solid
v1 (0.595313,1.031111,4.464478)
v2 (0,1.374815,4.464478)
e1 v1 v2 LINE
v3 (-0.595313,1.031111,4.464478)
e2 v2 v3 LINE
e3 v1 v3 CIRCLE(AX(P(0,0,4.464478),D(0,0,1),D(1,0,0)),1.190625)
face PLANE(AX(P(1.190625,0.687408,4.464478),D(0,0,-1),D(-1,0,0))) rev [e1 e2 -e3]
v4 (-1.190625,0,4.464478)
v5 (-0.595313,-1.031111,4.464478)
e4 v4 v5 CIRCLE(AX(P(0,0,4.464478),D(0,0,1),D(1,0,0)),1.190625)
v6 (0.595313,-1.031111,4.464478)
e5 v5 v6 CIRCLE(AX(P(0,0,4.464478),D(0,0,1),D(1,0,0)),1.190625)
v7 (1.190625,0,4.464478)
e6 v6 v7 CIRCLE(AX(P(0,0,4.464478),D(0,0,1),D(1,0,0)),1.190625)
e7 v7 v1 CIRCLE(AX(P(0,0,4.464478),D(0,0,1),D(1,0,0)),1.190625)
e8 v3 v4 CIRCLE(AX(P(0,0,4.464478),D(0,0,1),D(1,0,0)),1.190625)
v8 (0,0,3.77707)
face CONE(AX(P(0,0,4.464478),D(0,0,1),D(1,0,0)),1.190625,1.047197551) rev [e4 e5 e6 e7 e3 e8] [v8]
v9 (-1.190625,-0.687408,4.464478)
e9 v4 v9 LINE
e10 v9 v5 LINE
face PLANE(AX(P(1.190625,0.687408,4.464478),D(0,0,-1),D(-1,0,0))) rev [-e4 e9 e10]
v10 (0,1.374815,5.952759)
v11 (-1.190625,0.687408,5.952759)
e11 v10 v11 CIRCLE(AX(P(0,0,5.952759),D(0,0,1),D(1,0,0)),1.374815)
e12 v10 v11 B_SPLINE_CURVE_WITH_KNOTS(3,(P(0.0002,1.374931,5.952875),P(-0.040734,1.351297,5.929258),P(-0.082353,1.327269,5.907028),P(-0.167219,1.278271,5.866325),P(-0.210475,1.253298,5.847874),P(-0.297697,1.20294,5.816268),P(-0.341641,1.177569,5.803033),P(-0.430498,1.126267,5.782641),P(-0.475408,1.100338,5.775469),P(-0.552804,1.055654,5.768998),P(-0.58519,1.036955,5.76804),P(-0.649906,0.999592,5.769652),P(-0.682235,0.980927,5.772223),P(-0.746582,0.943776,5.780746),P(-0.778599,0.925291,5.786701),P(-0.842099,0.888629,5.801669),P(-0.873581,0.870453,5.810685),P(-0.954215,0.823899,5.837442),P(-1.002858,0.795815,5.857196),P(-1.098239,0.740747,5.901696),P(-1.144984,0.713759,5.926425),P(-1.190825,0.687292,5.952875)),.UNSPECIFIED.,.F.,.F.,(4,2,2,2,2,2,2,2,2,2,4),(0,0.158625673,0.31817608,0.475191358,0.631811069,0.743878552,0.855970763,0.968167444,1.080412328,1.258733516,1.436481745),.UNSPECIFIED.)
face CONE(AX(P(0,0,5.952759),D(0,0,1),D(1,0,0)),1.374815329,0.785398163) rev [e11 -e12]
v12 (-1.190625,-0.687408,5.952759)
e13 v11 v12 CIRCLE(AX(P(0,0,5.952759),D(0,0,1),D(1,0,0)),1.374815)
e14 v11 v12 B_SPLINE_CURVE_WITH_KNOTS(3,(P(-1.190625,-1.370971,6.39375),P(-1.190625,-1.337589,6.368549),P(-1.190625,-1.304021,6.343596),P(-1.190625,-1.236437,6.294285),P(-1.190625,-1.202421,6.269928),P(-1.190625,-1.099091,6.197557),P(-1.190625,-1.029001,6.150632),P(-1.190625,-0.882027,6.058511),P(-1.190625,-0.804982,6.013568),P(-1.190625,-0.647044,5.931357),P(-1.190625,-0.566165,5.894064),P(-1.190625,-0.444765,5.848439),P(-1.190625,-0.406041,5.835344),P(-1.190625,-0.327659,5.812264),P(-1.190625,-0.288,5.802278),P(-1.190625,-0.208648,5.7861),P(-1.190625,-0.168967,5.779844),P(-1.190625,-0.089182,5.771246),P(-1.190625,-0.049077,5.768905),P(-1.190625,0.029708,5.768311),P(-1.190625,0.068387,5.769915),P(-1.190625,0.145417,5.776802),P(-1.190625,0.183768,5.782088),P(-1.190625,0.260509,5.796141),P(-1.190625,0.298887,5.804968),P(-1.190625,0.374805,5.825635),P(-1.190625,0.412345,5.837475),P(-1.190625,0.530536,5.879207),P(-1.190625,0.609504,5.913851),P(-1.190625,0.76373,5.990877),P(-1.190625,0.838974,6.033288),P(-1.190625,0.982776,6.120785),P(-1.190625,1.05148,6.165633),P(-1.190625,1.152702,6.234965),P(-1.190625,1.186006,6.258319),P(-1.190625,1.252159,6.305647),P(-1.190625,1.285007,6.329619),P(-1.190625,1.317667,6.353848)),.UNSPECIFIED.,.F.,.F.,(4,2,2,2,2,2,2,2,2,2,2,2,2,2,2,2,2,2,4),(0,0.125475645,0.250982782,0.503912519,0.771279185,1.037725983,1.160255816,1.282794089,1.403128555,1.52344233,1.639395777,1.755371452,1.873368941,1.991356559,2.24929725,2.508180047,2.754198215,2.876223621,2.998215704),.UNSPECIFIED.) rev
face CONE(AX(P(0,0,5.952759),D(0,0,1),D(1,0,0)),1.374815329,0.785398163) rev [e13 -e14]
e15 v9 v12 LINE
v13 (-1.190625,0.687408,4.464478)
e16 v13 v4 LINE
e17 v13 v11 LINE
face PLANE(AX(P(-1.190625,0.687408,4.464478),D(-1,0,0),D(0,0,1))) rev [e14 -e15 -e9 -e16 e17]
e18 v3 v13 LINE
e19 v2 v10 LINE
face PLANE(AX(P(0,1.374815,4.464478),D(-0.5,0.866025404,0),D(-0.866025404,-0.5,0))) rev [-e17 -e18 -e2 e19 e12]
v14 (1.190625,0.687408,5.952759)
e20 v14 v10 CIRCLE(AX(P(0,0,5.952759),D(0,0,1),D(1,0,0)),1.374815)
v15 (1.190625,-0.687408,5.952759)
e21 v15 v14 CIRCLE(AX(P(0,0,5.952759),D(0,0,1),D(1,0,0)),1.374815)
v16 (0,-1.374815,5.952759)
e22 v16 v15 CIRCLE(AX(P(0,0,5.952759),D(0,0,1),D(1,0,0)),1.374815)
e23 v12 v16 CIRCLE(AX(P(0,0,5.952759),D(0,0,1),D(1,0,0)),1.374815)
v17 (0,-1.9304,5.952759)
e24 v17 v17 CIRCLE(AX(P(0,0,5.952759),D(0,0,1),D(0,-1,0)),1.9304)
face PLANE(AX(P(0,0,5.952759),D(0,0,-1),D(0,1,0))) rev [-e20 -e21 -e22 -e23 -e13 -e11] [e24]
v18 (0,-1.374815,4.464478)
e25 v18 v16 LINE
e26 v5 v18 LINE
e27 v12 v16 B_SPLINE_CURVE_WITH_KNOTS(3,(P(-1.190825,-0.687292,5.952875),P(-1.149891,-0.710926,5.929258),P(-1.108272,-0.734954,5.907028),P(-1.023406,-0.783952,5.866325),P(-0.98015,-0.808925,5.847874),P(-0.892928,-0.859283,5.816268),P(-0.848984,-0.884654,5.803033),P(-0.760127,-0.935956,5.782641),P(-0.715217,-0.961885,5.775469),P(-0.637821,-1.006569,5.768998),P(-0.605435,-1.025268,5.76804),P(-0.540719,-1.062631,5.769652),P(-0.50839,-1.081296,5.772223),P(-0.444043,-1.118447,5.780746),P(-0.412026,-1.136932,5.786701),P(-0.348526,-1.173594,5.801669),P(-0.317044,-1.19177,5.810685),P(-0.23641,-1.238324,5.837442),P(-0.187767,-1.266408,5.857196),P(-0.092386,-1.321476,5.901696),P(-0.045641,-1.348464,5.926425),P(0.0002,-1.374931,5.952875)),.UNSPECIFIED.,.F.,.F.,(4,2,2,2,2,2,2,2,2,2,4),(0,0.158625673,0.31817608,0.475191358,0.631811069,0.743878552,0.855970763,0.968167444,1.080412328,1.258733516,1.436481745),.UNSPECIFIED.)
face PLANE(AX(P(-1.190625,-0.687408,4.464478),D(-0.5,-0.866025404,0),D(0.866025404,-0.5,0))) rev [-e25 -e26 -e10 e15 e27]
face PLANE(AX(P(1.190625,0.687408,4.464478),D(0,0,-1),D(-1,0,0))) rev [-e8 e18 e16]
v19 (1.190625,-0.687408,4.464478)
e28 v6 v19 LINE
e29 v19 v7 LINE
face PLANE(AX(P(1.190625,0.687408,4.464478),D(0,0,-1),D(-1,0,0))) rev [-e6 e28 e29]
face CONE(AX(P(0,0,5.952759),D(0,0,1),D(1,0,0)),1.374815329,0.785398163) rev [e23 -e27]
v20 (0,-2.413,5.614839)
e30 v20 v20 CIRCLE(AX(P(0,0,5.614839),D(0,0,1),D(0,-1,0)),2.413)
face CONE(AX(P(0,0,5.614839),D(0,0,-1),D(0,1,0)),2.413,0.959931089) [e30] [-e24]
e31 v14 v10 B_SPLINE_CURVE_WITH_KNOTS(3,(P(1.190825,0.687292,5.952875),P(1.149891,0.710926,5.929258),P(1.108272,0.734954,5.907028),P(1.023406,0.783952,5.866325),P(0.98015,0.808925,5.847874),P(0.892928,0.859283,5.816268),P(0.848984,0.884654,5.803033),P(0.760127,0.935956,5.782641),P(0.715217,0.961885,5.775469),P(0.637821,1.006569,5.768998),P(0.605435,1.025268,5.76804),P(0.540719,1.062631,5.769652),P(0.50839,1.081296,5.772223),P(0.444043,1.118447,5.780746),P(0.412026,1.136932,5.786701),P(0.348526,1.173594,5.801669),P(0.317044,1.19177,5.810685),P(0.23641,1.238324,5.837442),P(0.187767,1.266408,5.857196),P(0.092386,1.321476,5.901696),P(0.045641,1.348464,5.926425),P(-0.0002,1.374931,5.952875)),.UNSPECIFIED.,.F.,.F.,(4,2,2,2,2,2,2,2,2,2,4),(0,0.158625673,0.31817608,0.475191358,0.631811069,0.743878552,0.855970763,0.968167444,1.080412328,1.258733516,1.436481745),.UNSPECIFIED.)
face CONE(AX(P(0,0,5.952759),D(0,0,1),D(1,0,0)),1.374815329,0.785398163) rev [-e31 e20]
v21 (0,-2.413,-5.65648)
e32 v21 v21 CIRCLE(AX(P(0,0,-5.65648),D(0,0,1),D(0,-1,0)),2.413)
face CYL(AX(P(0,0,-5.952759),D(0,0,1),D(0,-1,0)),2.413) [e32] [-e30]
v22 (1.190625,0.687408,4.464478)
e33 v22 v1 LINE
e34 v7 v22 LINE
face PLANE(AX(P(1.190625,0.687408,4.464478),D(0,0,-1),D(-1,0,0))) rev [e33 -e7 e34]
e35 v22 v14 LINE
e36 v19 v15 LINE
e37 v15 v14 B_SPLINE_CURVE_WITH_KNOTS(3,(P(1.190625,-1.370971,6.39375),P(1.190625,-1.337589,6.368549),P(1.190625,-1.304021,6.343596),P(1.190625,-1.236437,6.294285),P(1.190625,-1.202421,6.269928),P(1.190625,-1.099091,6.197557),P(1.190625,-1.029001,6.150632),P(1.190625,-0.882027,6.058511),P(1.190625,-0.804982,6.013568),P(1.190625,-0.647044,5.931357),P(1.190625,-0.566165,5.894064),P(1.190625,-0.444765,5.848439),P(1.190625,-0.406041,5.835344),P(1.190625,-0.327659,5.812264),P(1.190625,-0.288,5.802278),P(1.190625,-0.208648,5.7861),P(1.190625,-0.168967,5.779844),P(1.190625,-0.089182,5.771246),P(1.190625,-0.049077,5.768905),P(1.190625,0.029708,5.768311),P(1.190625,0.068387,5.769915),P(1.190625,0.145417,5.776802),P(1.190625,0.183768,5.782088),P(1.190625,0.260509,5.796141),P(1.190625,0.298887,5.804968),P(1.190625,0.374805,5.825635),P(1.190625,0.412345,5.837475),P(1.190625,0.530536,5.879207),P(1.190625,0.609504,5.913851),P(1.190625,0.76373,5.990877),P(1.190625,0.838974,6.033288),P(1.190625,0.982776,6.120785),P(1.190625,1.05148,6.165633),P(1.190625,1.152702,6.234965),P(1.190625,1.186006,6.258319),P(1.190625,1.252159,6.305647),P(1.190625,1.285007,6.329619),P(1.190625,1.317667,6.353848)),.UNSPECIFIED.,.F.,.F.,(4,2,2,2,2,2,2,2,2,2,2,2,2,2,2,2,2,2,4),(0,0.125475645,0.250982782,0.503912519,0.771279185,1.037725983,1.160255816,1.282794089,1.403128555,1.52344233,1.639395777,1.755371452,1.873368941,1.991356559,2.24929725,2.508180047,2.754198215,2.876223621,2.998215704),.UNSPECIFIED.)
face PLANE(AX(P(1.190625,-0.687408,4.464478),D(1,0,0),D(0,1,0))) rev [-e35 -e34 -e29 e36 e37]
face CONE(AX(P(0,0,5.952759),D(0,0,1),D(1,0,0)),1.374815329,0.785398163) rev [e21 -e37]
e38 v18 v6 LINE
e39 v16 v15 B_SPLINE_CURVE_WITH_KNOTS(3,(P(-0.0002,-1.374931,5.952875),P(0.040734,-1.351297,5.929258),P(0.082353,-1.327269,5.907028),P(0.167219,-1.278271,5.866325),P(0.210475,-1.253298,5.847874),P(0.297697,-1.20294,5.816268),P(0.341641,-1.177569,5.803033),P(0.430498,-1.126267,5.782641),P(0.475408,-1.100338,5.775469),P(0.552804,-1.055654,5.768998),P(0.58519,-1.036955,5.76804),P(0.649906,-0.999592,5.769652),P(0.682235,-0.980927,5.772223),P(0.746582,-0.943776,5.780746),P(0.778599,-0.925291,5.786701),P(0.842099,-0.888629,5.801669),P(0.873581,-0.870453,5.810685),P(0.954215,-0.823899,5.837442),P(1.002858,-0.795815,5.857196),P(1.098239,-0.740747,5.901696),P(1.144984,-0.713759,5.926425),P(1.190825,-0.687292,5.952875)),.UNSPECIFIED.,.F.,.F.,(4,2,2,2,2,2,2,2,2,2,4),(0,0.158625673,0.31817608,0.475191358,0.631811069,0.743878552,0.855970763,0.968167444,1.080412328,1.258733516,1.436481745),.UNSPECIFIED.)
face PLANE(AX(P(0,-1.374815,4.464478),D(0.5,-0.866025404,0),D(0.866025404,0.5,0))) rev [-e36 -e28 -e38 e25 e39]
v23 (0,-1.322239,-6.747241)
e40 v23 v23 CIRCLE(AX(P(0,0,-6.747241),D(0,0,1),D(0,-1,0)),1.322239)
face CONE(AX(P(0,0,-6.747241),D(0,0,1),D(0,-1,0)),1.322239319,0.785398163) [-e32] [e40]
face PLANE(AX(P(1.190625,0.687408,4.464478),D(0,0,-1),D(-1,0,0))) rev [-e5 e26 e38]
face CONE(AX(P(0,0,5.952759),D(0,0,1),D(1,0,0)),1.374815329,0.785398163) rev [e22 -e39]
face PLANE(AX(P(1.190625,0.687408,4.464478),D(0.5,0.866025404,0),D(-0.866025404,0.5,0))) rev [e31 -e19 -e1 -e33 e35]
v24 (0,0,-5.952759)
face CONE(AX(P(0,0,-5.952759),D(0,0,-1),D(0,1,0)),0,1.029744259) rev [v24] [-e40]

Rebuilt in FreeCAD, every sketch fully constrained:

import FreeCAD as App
import Part
import Sketcher

V = App.Vector
Q = App.Units.Quantity


def add_polygon(sketch, points):
    """Adds a closed chain of lines whose ends are joined by coincident constraints."""
    first, n = sketch.GeometryCount, len(points)
    for a, b in zip(points, points[1:] + points[:1]):
        sketch.addGeometry(Part.LineSegment(App.Vector(*a, 0), App.Vector(*b, 0)), False)
    for i in range(n):
        sketch.addConstraint(Sketcher.Constraint("Coincident", first + i, 2, first + (i + 1) % n, 1))

doc = App.newDocument("Part")
body = doc.addObject("PartDesign::Body", "Body")

# Sketch on YZ plane
sketch1 = doc.addObject("Sketcher::SketchObject", "Sketch")
body.addObject(sketch1)
sketch1.AttachmentSupport = (doc.YZ_Plane, [""])
sketch1.MapMode = "FlatFace"
add_polygon(sketch1, [(1.9304, 5.952759), (0, 5.952759), (0, -5.952759), (1.322239, -6.747241), (2.413, -5.65648), (2.413, 5.614839)])  # lines 0-5
sketch1.addConstraint([
    Sketcher.Constraint("Horizontal", 0),
    Sketcher.Constraint("Vertical", 1),
    Sketcher.Constraint("Vertical", 4),
    Sketcher.Constraint("Symmetric", 0, 2, 1, 2, -1, 1),
    Sketcher.Constraint("Equal", 2, 3),
    Sketcher.Constraint("Angle", 2, Q("-31 deg")),
    Sketcher.Constraint("Angle", 3, Q("45 deg")),
    Sketcher.Constraint("Angle", 5, Q("145 deg")),
    Sketcher.Constraint("DistanceY", 2, 2, 0, 2, Q("0.5 in")),
    Sketcher.Constraint("DistanceX", 0, 2, 0, 1, Q("0.076 in")),
    Sketcher.Constraint("DistanceX", -1, 1, 3, 2, Q("0.095 in")),
])
revolution = doc.addObject("PartDesign::Revolution", "Revolution")
body.addObject(revolution)
revolution.Profile = sketch1
revolution.ReferenceAxis = (sketch1, ["V_Axis"])
revolution.Angle = 360

# Sketch on XY plane
sketch2 = doc.addObject("Sketcher::SketchObject", "Sketch001")
body.addObject(sketch2)
sketch2.AttachmentSupport = (doc.XY_Plane, [""])
sketch2.MapMode = "FlatFace"
sketch2.AttachmentOffset = App.Placement(V(0, 0, 5.952759), App.Rotation())
add_polygon(sketch2, [(0, 1.374815), (-1.190625, 0.687408), (-1.190625, -0.687408), (0, -1.374815), (1.190625, -0.687408), (1.190625, 0.687408)])  # lines 0-5
sketch2.addConstraint([
    Sketcher.Constraint("Vertical", 1),
    Sketcher.Constraint("Vertical", 4),
    Sketcher.Constraint("Symmetric", 0, 2, 3, 2, -1, 1),
    Sketcher.Constraint("Symmetric", 2, 2, 5, 2, -1, 1),
    Sketcher.Constraint("PointOnObject", 2, 2, -2),
    Sketcher.Constraint("Parallel", 2, 5),
    Sketcher.Constraint("Horizontal", 1, 2, 3, 2),
    Sketcher.Constraint("Angle", 0, Q("-150 deg")),
    Sketcher.Constraint("DistanceX", 0, 2, -1, 1, Q("0.046875 in")),
    Sketcher.Constraint("DistanceY", 1, 2, 1, 1, 1.374815),
])
pocket1 = doc.addObject("PartDesign::Pocket", "Pocket")
body.addObject(pocket1)
pocket1.Profile = sketch2
pocket1.Length = 1.488281

# Sketch on YZ plane
sketch3 = doc.addObject("Sketcher::SketchObject", "Sketch002")
body.addObject(sketch3)
sketch3.AttachmentSupport = (doc.YZ_Plane, [""])
sketch3.MapMode = "FlatFace"
add_polygon(sketch3, [(0, 5.952759), (-1.374815, 5.952759), (0, 4.577944)])  # lines 0-2
sketch3.addConstraint([
    Sketcher.Constraint("Horizontal", 0),
    Sketcher.Constraint("Vertical", 2),
    Sketcher.Constraint("PointOnObject", 1, 2, -2),
    Sketcher.Constraint("Equal", 0, 2),
    Sketcher.Constraint("DistanceX", 0, 2, 0, 1, 1.374815),
    Sketcher.Constraint("DistanceY", -1, 1, 0, 2, 5.952759),
])
groove = doc.addObject("PartDesign::Groove", "Groove")
body.addObject(groove)
groove.Profile = sketch3
groove.ReferenceAxis = (sketch3, ["V_Axis"])
groove.Angle = 360

# Sketch on YZ plane
sketch4 = doc.addObject("Sketcher::SketchObject", "Sketch003")
body.addObject(sketch4)
sketch4.AttachmentSupport = (doc.YZ_Plane, [""])
sketch4.MapMode = "FlatFace"
add_polygon(sketch4, [(0, 4.464478), (-1.190625, 4.464478), (0, 3.77707)])  # lines 0-2
sketch4.addConstraint([
    Sketcher.Constraint("Horizontal", 0),
    Sketcher.Constraint("Vertical", 2),
    Sketcher.Constraint("PointOnObject", 1, 2, -2),
    Sketcher.Constraint("Angle", 1, Q("-30 deg")),
    Sketcher.Constraint("DistanceX", 0, 2, 0, 1, Q("0.046875 in")),
    Sketcher.Constraint("DistanceY", -1, 1, 1, 2, 3.77707),
])
groove2 = doc.addObject("PartDesign::Groove", "Groove001")
body.addObject(groove2)
groove2.Profile = sketch4
groove2.ReferenceAxis = (sketch4, ["V_Axis"])
groove2.Angle = 360

doc.recompute()
